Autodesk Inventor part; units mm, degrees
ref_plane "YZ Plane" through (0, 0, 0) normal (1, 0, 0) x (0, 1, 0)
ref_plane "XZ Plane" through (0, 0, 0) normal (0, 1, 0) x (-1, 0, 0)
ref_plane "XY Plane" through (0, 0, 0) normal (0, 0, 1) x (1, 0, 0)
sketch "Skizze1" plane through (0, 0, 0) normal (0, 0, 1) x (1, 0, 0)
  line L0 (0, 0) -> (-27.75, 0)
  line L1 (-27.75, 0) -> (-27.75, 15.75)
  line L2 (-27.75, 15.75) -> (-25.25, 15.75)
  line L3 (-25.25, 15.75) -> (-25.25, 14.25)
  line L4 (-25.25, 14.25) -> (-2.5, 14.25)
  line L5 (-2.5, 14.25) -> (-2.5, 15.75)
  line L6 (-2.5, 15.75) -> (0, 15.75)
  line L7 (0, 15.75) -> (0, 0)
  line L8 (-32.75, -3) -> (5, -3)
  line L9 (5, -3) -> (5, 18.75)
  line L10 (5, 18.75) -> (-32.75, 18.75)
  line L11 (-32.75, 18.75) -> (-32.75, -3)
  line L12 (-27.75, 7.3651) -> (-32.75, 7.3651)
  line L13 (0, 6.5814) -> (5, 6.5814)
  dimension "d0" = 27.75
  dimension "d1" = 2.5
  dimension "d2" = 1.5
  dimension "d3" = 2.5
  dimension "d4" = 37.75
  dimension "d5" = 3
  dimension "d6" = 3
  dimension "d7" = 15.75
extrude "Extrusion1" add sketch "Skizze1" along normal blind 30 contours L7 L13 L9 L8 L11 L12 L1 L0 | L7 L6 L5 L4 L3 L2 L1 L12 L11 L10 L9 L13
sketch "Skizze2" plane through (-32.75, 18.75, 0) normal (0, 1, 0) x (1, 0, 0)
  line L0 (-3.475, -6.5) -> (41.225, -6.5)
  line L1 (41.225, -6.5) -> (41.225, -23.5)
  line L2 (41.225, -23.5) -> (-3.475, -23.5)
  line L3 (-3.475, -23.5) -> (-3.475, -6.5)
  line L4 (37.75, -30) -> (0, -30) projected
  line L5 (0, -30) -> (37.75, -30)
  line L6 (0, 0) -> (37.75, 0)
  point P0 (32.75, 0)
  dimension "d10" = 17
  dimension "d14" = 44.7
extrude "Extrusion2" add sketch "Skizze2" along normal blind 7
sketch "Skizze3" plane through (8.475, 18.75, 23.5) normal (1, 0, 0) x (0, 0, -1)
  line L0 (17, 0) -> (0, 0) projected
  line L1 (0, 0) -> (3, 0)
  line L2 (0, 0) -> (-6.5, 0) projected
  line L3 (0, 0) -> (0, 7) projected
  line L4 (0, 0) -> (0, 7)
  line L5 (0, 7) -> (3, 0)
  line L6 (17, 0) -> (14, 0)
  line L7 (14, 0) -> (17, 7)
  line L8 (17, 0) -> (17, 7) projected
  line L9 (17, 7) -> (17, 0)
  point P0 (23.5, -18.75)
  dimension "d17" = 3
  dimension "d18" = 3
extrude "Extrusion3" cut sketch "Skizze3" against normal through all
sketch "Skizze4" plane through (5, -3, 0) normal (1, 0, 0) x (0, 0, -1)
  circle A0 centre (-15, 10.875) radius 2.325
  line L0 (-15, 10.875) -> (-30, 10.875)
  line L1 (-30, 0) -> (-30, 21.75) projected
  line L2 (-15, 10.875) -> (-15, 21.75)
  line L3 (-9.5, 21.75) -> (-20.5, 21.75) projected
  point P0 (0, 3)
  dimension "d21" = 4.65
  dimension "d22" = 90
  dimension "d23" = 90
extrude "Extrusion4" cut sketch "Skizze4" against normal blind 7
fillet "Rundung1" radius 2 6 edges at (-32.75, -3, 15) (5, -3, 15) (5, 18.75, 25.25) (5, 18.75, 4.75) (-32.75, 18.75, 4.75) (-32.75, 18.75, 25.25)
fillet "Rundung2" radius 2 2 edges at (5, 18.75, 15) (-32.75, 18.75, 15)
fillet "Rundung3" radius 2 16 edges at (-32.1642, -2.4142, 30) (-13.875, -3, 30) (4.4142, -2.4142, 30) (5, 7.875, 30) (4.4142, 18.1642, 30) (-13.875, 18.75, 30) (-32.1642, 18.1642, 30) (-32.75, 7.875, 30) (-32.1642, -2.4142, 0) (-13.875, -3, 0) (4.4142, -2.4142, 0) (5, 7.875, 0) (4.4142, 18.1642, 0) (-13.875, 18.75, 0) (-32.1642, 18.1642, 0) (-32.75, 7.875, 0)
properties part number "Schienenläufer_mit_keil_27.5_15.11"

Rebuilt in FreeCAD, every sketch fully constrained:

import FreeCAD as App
import Part
import Sketcher
from FreeCAD import Vector
Q = App.Units.Quantity


def edges_at(feature, points):
    """Names of the edges that pass closest to the given points."""
    edges = feature.Shape.Edges
    near = lambda p: min(range(len(edges)), key=lambda i: edges[i].distToShape(Part.Vertex(*p))[0])
    return sorted({f"Edge{near(p) + 1}" for p in points})

doc = App.newDocument("Part")
params = doc.addObject("Spreadsheet::Sheet", "Params")
for row, (alias, value) in enumerate([
    ("sketch1_width", "2.5 mm"),
    ("sketch1_height", "1.5 mm"),
    ("sketch1_width2", "37.75 mm"),
    ("sketch1_width3", "27.75 mm"),
    ("sketch1_height2", "15.75 mm"),
    ("pad1_length", "30 mm"),
    ("sketch2_height", "17 mm"),
    ("sketch2_width", "44.7 mm"),
    ("pad2_length", "7 mm"),
    ("sketch3_height", "3 mm"),
    ("sketch3_width", "7 mm"),
    ("sketch4_diameter", "4.65 mm"),
    ("pocket2_length", "7 mm"),
    ("fillet_radius", "2 mm"),
    ("fillet2_radius", "2 mm"),
    ("fillet3_radius", "2 mm"),
], start=1):
    params.set(f"A{row}", alias)
    params.set(f"B{row}", "=" + value)
    params.setAlias(f"B{row}", alias)

body = doc.addObject("PartDesign::Body", "Body")

# Sketch on XY plane
sketch1 = doc.addObject("Sketcher::SketchObject", "Sketch")
body.addObject(sketch1)
sketch1.AttachmentSupport = (doc.XY_Plane, [""])
sketch1.MapMode = "FlatFace"
sketch1.addGeometry([
    Part.LineSegment(Vector(5, -3, 0), Vector(5, 18.8, 0)),  # 0
    Part.LineSegment(Vector(5, 18.8, 0), Vector(-32.8, 18.8, 0)),  # 1
    Part.LineSegment(Vector(-32.8, 18.8, 0), Vector(-32.8, -3, 0)),  # 2
    Part.LineSegment(Vector(-32.8, -3, 0), Vector(5, -3, 0)),  # 3
    Part.LineSegment(Vector(0, 0, 0), Vector(-27.8, 0, 0)),  # 4
    Part.LineSegment(Vector(-27.8, 0, 0), Vector(-27.8, 15.8, 0)),  # 5
    Part.LineSegment(Vector(-27.8, 15.8, 0), Vector(-25.2, 15.8, 0)),  # 6
    Part.LineSegment(Vector(-25.2, 15.8, 0), Vector(-25.2, 14.2, 0)),  # 7
    Part.LineSegment(Vector(-25.2, 14.2, 0), Vector(-2.5, 14.2, 0)),  # 8
    Part.LineSegment(Vector(-2.5, 14.2, 0), Vector(-2.5, 15.8, 0)),  # 9
    Part.LineSegment(Vector(-2.5, 15.8, 0), Vector(0, 15.8, 0)),  # 10
    Part.LineSegment(Vector(0, 15.8, 0), Vector(0, 0, 0)),  # 11
], False)
sketch1.addConstraint([
    Sketcher.Constraint("Coincident", 0, 2, 1, 1),
    Sketcher.Constraint("Coincident", 1, 2, 2, 1),
    Sketcher.Constraint("Coincident", 2, 2, 3, 1),
    Sketcher.Constraint("Coincident", 3, 2, 0, 1),
    Sketcher.Constraint("Coincident", 4, 2, 5, 1),
    Sketcher.Constraint("Coincident", 5, 2, 6, 1),
    Sketcher.Constraint("Coincident", 6, 2, 7, 1),
    Sketcher.Constraint("Coincident", 7, 2, 8, 1),
    Sketcher.Constraint("Coincident", 8, 2, 9, 1),
    Sketcher.Constraint("Coincident", 9, 2, 10, 1),
    Sketcher.Constraint("Coincident", 10, 2, 11, 1),
    Sketcher.Constraint("Coincident", 11, 2, 4, 1),
    Sketcher.Constraint("Vertical", 0),
    Sketcher.Constraint("Horizontal", 1),
    Sketcher.Constraint("Vertical", 2),
    Sketcher.Constraint("Horizontal", 3),
    Sketcher.Constraint("Horizontal", 4),
    Sketcher.Constraint("Vertical", 5),
    Sketcher.Constraint("Horizontal", 6),
    Sketcher.Constraint("Vertical", 7),
    Sketcher.Constraint("Horizontal", 8),
    Sketcher.Constraint("Vertical", 9),
    Sketcher.Constraint("Horizontal", 10),
    Sketcher.Constraint("Vertical", 11),
    Sketcher.Constraint("Coincident", 11, 2, -1, 1),
    Sketcher.Constraint("Horizontal", 6, 2, 9, 2),
    Sketcher.Constraint("Equal", 6, 10),
    Sketcher.Constraint("DistanceX", 6, 1, 6, 2, Q("2.5 mm")),
    Sketcher.Constraint("DistanceY", 7, 2, 7, 1, Q("1.5 mm")),
    Sketcher.Constraint("DistanceY", 2, 2, -1, 1, Q("3 mm")),
    Sketcher.Constraint("DistanceY", 5, 2, 1, 2, Q("3 mm")),
    Sketcher.Constraint("DistanceX", 1, 2, 1, 1, Q("37.75 mm")),
    Sketcher.Constraint("DistanceX", 4, 2, 4, 1, Q("27.75 mm")),
    Sketcher.Constraint("DistanceY", 5, 1, 5, 2, Q("15.75 mm")),
    Sketcher.Constraint("DistanceX", -1, 1, 0, 2, Q("5 mm")),
])
sketch1.setExpression("Constraints[27]", "Params.sketch1_width")
sketch1.setExpression("Constraints[28]", "Params.sketch1_height")
sketch1.setExpression("Constraints[31]", "Params.sketch1_width2")
sketch1.setExpression("Constraints[32]", "Params.sketch1_width3")
sketch1.setExpression("Constraints[33]", "Params.sketch1_height2")
pad1 = doc.addObject("PartDesign::Pad", "Pad")
body.addObject(pad1)
pad1.Profile = sketch1
pad1.setExpression("Length", "Params.pad1_length")

# Sketch on XZ plane
sketch2 = doc.addObject("Sketcher::SketchObject", "Sketch001")
body.addObject(sketch2)
sketch2.AttachmentSupport = (doc.XZ_Plane, [""])
sketch2.MapMode = "FlatFace"
sketch2.AttachmentOffset = App.Placement(Vector(0, 0, -18.75), App.Rotation())
sketch2.addGeometry([
    Part.LineSegment(Vector(8, 6, 0), Vector(-36, 6, 0)),
    Part.LineSegment(Vector(-36, 6, 0), Vector(-36, 24, 0)),
    Part.LineSegment(Vector(-36, 24, 0), Vector(8, 24, 0)),
    Part.LineSegment(Vector(8, 24, 0), Vector(8, 6, 0)),
], False)
sketch2.addConstraint([
    Sketcher.Constraint("Coincident", 0, 2, 1, 1),
    Sketcher.Constraint("Coincident", 1, 2, 2, 1),
    Sketcher.Constraint("Coincident", 2, 2, 3, 1),
    Sketcher.Constraint("Coincident", 3, 2, 0, 1),
    Sketcher.Constraint("Horizontal", 0),
    Sketcher.Constraint("Vertical", 1),
    Sketcher.Constraint("Horizontal", 2),
    Sketcher.Constraint("Vertical", 3),
    Sketcher.Constraint("DistanceY", 1, 1, 1, 2, Q("17 mm")),
    Sketcher.Constraint("DistanceX", 0, 2, 0, 1, Q("44.7 mm")),
    Sketcher.Constraint("DistanceY", -1, 1, 0, 2, Q("6.5 mm")),
    Sketcher.Constraint("DistanceX", 0, 2, -1, 1, Q("36.225 mm")),
])
sketch2.setExpression("Constraints[8]", "Params.sketch2_height")
sketch2.setExpression("Constraints[9]", "Params.sketch2_width")
pad2 = doc.addObject("PartDesign::Pad", "Pad001")
body.addObject(pad2)
pad2.Profile = sketch2
pad2.setExpression("Length", "Params.pad2_length")
pad2.Reversed = True

# Sketch on YZ plane
sketch3 = doc.addObject("Sketcher::SketchObject", "Sketch002")
body.addObject(sketch3)
sketch3.AttachmentSupport = (doc.YZ_Plane, [""])
sketch3.MapMode = "FlatFace"
sketch3.AttachmentOffset = App.Placement(Vector(0, 0, 8.475), App.Rotation())
sketch3.addGeometry([
    Part.LineSegment(Vector(18.8, 23.5, 0), Vector(18.8, 20.5, 0)),  # 0
    Part.LineSegment(Vector(18.8, 20.5, 0), Vector(25.8, 23.5, 0)),  # 1
    Part.LineSegment(Vector(25.8, 23.5, 0), Vector(18.8, 23.5, 0)),  # 2
    Part.LineSegment(Vector(18.8, 9.5, 0), Vector(18.8, 6.5, 0)),  # 3
    Part.LineSegment(Vector(18.8, 6.5, 0), Vector(25.8, 6.5, 0)),  # 4
    Part.LineSegment(Vector(25.8, 6.5, 0), Vector(18.8, 9.5, 0)),  # 5
], False)
sketch3.addConstraint([
    Sketcher.Constraint("Coincident", 0, 2, 1, 1),
    Sketcher.Constraint("Coincident", 1, 2, 2, 1),
    Sketcher.Constraint("Coincident", 2, 2, 0, 1),
    Sketcher.Constraint("Coincident", 3, 2, 4, 1),
    Sketcher.Constraint("Coincident", 4, 2, 5, 1),
    Sketcher.Constraint("Coincident", 5, 2, 3, 1),
    Sketcher.Constraint("Vertical", 0),
    Sketcher.Constraint("Horizontal", 2),
    Sketcher.Constraint("Vertical", 3),
    Sketcher.Constraint("Horizontal", 4),
    Sketcher.Constraint("Vertical", 2, 2, 3, 2),
    Sketcher.Constraint("Vertical", 1, 2, 4, 2),
    Sketcher.Constraint("Equal", 0, 3),
    Sketcher.Constraint("DistanceY", 0, 2, 0, 1, Q("3 mm")),
    Sketcher.Constraint("DistanceX", 2, 2, 2, 1, Q("7 mm")),
    Sketcher.Constraint("DistanceY", 3, 2, 0, 2, Q("14 mm")),
    Sketcher.Constraint("DistanceY", -1, 1, 0, 2, Q("20.5 mm")),
    Sketcher.Constraint("DistanceX", -1, 1, 0, 2, Q("18.75 mm")),
])
sketch3.setExpression("Constraints[13]", "Params.sketch3_height")
sketch3.setExpression("Constraints[14]", "Params.sketch3_width")
pocket1 = doc.addObject("PartDesign::Pocket", "Pocket")
body.addObject(pocket1)
pocket1.Profile = sketch3
pocket1.Type = "ThroughAll"

# Sketch on YZ plane
sketch4 = doc.addObject("Sketcher::SketchObject", "Sketch003")
body.addObject(sketch4)
sketch4.AttachmentSupport = (doc.YZ_Plane, [""])
sketch4.MapMode = "FlatFace"
sketch4.AttachmentOffset = App.Placement(Vector(0, 0, 5), App.Rotation())
sketch4.addGeometry(Part.Circle(Vector(7.9, 15, 0), Vector(0, 0, 1), 2.3), False)
sketch4.addConstraint([
    Sketcher.Constraint("Diameter", 0, Q("4.65 mm")),
    Sketcher.Constraint("DistanceY", -1, 1, 0, 3, Q("15 mm")),
    Sketcher.Constraint("DistanceX", -1, 1, 0, 3, Q("7.875 mm")),
])
sketch4.setExpression("Constraints[0]", "Params.sketch4_diameter")
pocket2 = doc.addObject("PartDesign::Pocket", "Pocket001")
body.addObject(pocket2)
pocket2.Profile = sketch4
pocket2.setExpression("Length", "Params.pocket2_length")
doc.recompute()

fillet = doc.addObject("PartDesign::Fillet", "Fillet")
body.addObject(fillet)
fillet.Base = (pocket2, edges_at(pocket2, [
    (-32.75, -3, 15),
    (5, -3, 15),
    (5, 18.75, 25.25),
    (5, 18.75, 4.75),
    (-32.75, 18.75, 4.75),
    (-32.75, 18.75, 25.25),
]))
fillet.setExpression("Radius", "Params.fillet_radius")
doc.recompute()

fillet2 = doc.addObject("PartDesign::Fillet", "Fillet001")
body.addObject(fillet2)
fillet2.Base = (fillet, edges_at(fillet, [(5, 18.75, 15), (-32.75, 18.75, 15)]))
fillet2.setExpression("Radius", "Params.fillet2_radius")
doc.recompute()

fillet3 = doc.addObject("PartDesign::Fillet", "Fillet002")
body.addObject(fillet3)
fillet3.Base = (fillet2, edges_at(fillet2, [
    (-32.164, -2.414, 30),
    (-13.875, -3, 30),
    (4.414, -2.414, 30),
    (5, 7.875, 30),
    (4.414, 18.164, 30),
    (-13.875, 18.75, 30),
    (-32.164, 18.164, 30),
    (-32.75, 7.875, 30),
    (-32.164, -2.414, 0),
    (-13.875, -3, 0),
    (4.414, -2.414, 0),
    (5, 7.875, 0),
    (4.414, 18.164, 0),
    (-13.875, 18.75, 0),
    (-32.164, 18.164, 0),
    (-32.75, 7.875, 0),
]))
fillet3.setExpression("Radius", "Params.fillet3_radius")

doc.recompute()
